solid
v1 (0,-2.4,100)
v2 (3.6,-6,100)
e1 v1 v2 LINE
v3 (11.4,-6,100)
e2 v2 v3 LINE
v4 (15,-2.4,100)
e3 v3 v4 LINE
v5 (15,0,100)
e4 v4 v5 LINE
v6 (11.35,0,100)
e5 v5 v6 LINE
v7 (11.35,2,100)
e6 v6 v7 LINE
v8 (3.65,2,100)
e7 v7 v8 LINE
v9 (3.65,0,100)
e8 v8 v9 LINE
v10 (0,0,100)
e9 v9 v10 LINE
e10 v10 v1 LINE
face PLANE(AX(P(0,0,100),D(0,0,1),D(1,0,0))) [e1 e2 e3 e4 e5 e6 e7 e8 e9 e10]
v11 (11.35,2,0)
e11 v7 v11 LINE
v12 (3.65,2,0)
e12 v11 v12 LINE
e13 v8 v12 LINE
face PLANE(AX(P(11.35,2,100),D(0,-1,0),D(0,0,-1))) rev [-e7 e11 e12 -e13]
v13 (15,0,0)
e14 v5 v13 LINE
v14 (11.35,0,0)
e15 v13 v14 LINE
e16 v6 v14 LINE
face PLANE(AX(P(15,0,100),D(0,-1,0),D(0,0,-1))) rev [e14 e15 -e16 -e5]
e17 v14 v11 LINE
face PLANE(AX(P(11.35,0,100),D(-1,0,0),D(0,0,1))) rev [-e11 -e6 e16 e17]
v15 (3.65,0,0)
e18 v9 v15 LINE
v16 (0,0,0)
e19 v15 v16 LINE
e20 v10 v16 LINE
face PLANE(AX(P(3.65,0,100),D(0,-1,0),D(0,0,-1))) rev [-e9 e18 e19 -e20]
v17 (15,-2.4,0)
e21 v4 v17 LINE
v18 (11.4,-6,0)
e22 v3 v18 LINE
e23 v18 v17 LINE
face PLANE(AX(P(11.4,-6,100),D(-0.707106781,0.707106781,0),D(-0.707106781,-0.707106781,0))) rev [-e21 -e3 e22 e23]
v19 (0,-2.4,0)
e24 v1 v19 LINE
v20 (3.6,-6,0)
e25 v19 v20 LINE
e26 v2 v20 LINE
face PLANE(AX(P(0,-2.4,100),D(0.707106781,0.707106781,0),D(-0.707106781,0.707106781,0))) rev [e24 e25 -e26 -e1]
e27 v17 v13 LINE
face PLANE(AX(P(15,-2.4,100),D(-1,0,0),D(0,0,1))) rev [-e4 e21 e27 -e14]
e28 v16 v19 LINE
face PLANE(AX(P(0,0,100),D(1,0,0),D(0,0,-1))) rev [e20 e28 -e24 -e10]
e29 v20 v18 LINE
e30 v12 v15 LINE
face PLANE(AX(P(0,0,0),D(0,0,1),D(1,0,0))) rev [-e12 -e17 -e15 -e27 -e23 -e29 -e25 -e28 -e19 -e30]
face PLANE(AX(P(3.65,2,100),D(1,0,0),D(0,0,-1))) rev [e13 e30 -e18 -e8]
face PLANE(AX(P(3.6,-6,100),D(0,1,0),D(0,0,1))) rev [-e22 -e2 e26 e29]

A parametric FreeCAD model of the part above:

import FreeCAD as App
import Part
import Sketcher
Q = App.Units.Quantity


def add_polygon(sketch, points):
    """Adds a closed chain of lines whose ends are joined by coincident constraints."""
    first, n = sketch.GeometryCount, len(points)
    for a, b in zip(points, points[1:] + points[:1]):
        sketch.addGeometry(Part.LineSegment(App.Vector(*a, 0), App.Vector(*b, 0)), False)
    for i in range(n):
        sketch.addConstraint(Sketcher.Constraint("Coincident", first + i, 2, first + (i + 1) % n, 1))

doc = App.newDocument("Part")
body = doc.addObject("PartDesign::Body", "Body")

sketch1 = body.newObject("Sketcher::SketchObject", "Sketch")
sketch1.AttachmentSupport = (doc.getObject("XY_Plane"), [""])
sketch1.MapMode = "FlatFace"
add_polygon(sketch1, [(11.4, -6), (15, -2.4), (15, 0), (11.3, 0), (11.3, 2), (3.6, 2), (3.6, 0), (0, 0), (0, -2.4), (3.6, -6)])
sketch1.addConstraint([
    Sketcher.Constraint("Vertical", 1),
    Sketcher.Constraint("Horizontal", 2),
    Sketcher.Constraint("Vertical", 3),
    Sketcher.Constraint("Horizontal", 4),
    Sketcher.Constraint("Vertical", 5),
    Sketcher.Constraint("Horizontal", 6),
    Sketcher.Constraint("Vertical", 7),
    Sketcher.Constraint("Horizontal", 9),
    Sketcher.Constraint("Coincident", 6, 2, -1, 1),
    Sketcher.Constraint("PointOnObject", 1, 2, -1),
    Sketcher.Constraint("Perpendicular", 0, 8),
    Sketcher.Constraint("Horizontal", 0, 2, 7, 2),
    Sketcher.Constraint("Equal", 2, 6),
    Sketcher.Constraint("Equal", 0, 8),
    Sketcher.Constraint("DistanceY", 3, 1, 3, 2, Q("2 mm")),
    Sketcher.Constraint("DistanceX", 4, 2, 4, 1, Q("7.7 mm")),
    Sketcher.Constraint("DistanceX", 9, 1, 9, 2, Q("7.8 mm")),
    Sketcher.Constraint("DistanceY", 1, 1, 1, 2, Q("2.4 mm")),
    Sketcher.Constraint("DistanceX", -1, 1, 0, 2, Q("15 mm")),
])
pad1 = body.newObject("PartDesign::Pad", "Pad")
pad1.Profile = sketch1
pad1.Length = 100

doc.recompute()
